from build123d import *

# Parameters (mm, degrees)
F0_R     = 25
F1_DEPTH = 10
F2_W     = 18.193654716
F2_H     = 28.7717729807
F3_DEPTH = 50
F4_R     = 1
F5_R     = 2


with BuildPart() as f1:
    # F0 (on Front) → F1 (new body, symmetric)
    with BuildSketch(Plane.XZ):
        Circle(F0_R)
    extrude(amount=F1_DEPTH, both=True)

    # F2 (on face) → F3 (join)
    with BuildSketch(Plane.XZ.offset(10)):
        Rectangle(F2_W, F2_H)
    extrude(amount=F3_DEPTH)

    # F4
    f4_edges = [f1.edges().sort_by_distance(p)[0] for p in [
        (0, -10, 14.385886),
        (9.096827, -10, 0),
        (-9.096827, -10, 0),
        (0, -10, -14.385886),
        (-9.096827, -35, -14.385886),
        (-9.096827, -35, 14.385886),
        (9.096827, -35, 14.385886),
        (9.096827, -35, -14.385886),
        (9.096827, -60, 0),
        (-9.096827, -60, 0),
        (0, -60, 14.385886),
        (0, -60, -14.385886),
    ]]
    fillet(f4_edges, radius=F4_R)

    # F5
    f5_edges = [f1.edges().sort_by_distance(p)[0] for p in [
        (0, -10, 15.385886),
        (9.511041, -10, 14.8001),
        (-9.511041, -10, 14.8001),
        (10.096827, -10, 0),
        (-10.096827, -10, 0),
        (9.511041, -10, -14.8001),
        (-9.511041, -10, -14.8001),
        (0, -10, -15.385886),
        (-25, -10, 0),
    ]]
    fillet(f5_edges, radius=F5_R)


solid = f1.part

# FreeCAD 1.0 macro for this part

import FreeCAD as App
import Part
import Sketcher


def edges_at(feature, points):
    """Names of the edges that pass closest to the given points."""
    edges = feature.Shape.Edges
    near = lambda p: min(range(len(edges)), key=lambda i: edges[i].distToShape(Part.Vertex(*p))[0])
    return sorted({f"Edge{near(p) + 1}" for p in points})


def add_polygon(sketch, points):
    """Adds a closed chain of lines whose ends are joined by coincident constraints."""
    first, n = sketch.GeometryCount, len(points)
    for a, b in zip(points, points[1:] + points[:1]):
        sketch.addGeometry(Part.LineSegment(App.Vector(*a, 0), App.Vector(*b, 0)), False)
    for i in range(n):
        sketch.addConstraint(Sketcher.Constraint("Coincident", first + i, 2, first + (i + 1) % n, 1))

doc = App.newDocument("Part")
body = doc.addObject("PartDesign::Body", "Body")

sketch1 = body.newObject("Sketcher::SketchObject", "Sketch")
sketch1.AttachmentSupport = (doc.getObject("XZ_Plane"), [""])
sketch1.MapMode = "FlatFace"
sketch1.addGeometry(Part.Circle(App.Vector(0, 0, 0), App.Vector(0, 0, 1), 25), False)
sketch1.addConstraint([
    Sketcher.Constraint("Coincident", 0, 3, -1, 1),
    Sketcher.Constraint("Diameter", 0, 50.0),
])
pad1 = body.newObject("PartDesign::Pad", "Pad")
pad1.Profile = sketch1
pad1.Length = 20
pad1.Midplane = True

sketch2 = body.newObject("Sketcher::SketchObject", "Sketch001")
sketch2.AttachmentSupport = (doc.getObject("XZ_Plane"), [""])
sketch2.MapMode = "FlatFace"
sketch2.AttachmentOffset = App.Placement(App.Vector(0, 0, 10), App.Rotation())
add_polygon(sketch2, [(-9, 14), (-9, -14), (9, -14), (9, 14)])
sketch2.addConstraint([
    Sketcher.Constraint("Vertical", 0),
    Sketcher.Constraint("Horizontal", 1),
    Sketcher.Constraint("Vertical", 2),
    Sketcher.Constraint("Horizontal", 3),
    Sketcher.Constraint("Symmetric", 0, 2, 2, 2, -1, 1),
    Sketcher.Constraint("DistanceX", 1, 1, 1, 2, 18.193655),
    Sketcher.Constraint("DistanceY", 0, 2, 0, 1, 28.771773),
])
pad2 = body.newObject("PartDesign::Pad", "Pad001")
pad2.Profile = sketch2
pad2.Length = 50
doc.recompute()

fillet = body.newObject("PartDesign::Fillet", "Fillet")
fillet.Base = (pad2, edges_at(pad2, [
    (0, -10, 14.386),
    (9.097, -10, 0),
    (-9.097, -10, 0),
    (0, -10, -14.386),
    (-9.097, -35, -14.386),
    (-9.097, -35, 14.386),
    (9.097, -35, 14.386),
    (9.097, -35, -14.386),
    (9.097, -60, 0),
    (-9.097, -60, 0),
    (0, -60, 14.386),
    (0, -60, -14.386),
]))
fillet.Radius = 1
doc.recompute()

fillet2 = body.newObject("PartDesign::Fillet", "Fillet001")
fillet2.Base = (fillet, edges_at(fillet, [
    (0, -10, 15.386),
    (9.511, -10, 14.8),
    (-9.511, -10, 14.8),
    (10.097, -10, 0),
    (-10.097, -10, 0),
    (9.511, -10, -14.8),
    (-9.511, -10, -14.8),
    (0, -10, -15.386),
    (-25, -10, 0),
]))
fillet2.Radius = 2

doc.recompute()
